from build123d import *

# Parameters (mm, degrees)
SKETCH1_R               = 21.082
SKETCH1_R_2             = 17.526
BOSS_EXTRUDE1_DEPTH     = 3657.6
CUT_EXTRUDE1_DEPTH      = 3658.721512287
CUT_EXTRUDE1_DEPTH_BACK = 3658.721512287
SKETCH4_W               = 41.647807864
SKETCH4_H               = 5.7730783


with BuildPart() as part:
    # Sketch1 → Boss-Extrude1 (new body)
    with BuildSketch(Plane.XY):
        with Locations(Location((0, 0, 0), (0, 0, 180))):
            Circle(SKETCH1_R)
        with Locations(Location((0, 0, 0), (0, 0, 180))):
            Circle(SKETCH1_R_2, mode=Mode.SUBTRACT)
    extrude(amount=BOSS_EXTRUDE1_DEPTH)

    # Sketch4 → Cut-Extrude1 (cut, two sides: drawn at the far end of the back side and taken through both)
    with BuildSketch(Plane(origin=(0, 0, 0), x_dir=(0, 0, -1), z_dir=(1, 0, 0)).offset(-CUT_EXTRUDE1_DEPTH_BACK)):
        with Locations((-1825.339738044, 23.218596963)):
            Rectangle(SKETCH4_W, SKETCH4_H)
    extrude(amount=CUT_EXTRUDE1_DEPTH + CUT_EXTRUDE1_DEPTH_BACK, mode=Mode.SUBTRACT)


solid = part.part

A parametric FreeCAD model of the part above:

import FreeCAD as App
import Part
import Sketcher

V = App.Vector
Q = App.Units.Quantity

doc = App.newDocument("Part")
body = doc.addObject("PartDesign::Body", "Body")

# Sketch on XY plane
sketch1 = body.newObject("Sketcher::SketchObject", "Sketch")
sketch1.AttachmentSupport = (doc.getObject("XY_Plane"), [""])
sketch1.MapMode = "FlatFace"
sketch1.addGeometry([
    Part.Circle(V(0, 0, 0), V(0, 0, 1), 21),
    Part.Circle(V(0, 0, 0), V(0, 0, 1), 18),
], False)
sketch1.addConstraint([
    Sketcher.Constraint("Coincident", 0, 3, -1, 1),
    Sketcher.Constraint("Coincident", 1, 3, -1, 1),
    Sketcher.Constraint("Diameter", 0, Q("1.66 in")),
    Sketcher.Constraint("Diameter", 1, Q("1.38 in")),
])
pad1 = body.newObject("PartDesign::Pad", "Pad")
pad1.Profile = sketch1
pad1.Length = Q("144 in")

# Sketch on YZ plane
sketch2 = body.newObject("Sketcher::SketchObject", "Sketch001")
sketch2.AttachmentSupport = (doc.getObject("YZ_Plane"), [""])
sketch2.MapMode = "FlatFace"
sketch2.addGeometry([
    Part.LineSegment(V(26, 1846, 0), V(20, 1846, 0)),
    Part.LineSegment(V(20, 1846, 0), V(20, 1805, 0)),
    Part.LineSegment(V(20, 1805, 0), V(26, 1805, 0)),
    Part.LineSegment(V(26, 1805, 0), V(26, 1846, 0)),
], False)
sketch2.addConstraint([
    Sketcher.Constraint("Coincident", 0, 2, 1, 1),
    Sketcher.Constraint("Coincident", 1, 2, 2, 1),
    Sketcher.Constraint("Coincident", 2, 2, 3, 1),
    Sketcher.Constraint("Coincident", 3, 2, 0, 1),
    Sketcher.Constraint("Horizontal", 0),
    Sketcher.Constraint("Vertical", 1),
    Sketcher.Constraint("Horizontal", 2),
    Sketcher.Constraint("Vertical", 3),
    Sketcher.Constraint("DistanceX", 0, 2, 0, 1, 5.773078),
    Sketcher.Constraint("DistanceY", 1, 2, 1, 1, 41.647808),
    Sketcher.Constraint("DistanceY", -1, 1, 0, 2, 1846.163642),
    Sketcher.Constraint("DistanceX", -1, 1, 0, 2, 20.332058),
])
pocket1 = body.newObject("PartDesign::Pocket", "Pocket")
pocket1.Profile = sketch2
pocket1.Type = "ThroughAll"
pocket1.Midplane = True

doc.recompute()
